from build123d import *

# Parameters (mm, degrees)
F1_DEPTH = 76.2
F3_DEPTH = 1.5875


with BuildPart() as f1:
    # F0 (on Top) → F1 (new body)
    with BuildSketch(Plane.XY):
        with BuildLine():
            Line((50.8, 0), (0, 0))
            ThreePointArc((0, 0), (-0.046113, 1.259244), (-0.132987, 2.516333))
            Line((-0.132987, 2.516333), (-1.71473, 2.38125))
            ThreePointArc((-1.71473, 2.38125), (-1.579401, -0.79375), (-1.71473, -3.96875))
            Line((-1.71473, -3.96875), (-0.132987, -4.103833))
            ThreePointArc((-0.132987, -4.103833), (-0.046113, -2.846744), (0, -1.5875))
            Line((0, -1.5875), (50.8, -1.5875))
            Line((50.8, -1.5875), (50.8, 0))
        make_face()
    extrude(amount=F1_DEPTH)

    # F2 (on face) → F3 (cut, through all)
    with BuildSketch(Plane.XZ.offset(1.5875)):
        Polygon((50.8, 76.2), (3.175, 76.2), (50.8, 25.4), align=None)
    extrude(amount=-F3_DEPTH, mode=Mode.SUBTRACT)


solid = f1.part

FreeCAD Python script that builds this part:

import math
import FreeCAD as App
import Part
import Sketcher
from FreeCAD import Vector
Q = App.Units.Quantity

doc = App.newDocument("Part")
params = doc.addObject("Spreadsheet::Sheet", "Params")
for row, (alias, value) in enumerate([
    ("sketch1_width", "2 in"),
    ("sketch1_height", "0.0625 in"),
    ("sketch1_length", "0.0625 in"),
    ("pad1_length", "3 in"),
    ("sketch2_height", "2 in"),
    ("sketch2_width", "1.875 in"),
], start=1):
    params.set(f"A{row}", alias)
    params.set(f"B{row}", "=" + value)
    params.setAlias(f"B{row}", alias)

body = doc.addObject("PartDesign::Body", "Body")

sketch1 = body.newObject("Sketcher::SketchObject", "Sketch")
sketch1.AttachmentSupport = (doc.getObject("XY_Plane"), [""])
sketch1.MapMode = "FlatFace"
sketch1.addGeometry([
    Part.LineSegment(Vector(50.8, 0, 0), Vector(0, 0, 0)),
    Part.ArcOfCircle(Part.Circle(Vector(-38.9, -0.8, 0), Vector(0, 0, 1), 38.9), math.radians(1.17), math.radians(4.88)),
    Part.LineSegment(Vector(-0.1, 2.5, 0), Vector(-1.7, 2.4, 0)),
    Part.ArcOfCircle(Part.Circle(Vector(-38.9, -0.8, 0), Vector(0, 0, 1), 37.3), math.radians(-4.88), math.radians(4.88)),
    Part.LineSegment(Vector(-1.7, -4, 0), Vector(-0.1, -4.1, 0)),
    Part.ArcOfCircle(Part.Circle(Vector(-38.9, -0.8, 0), Vector(0, 0, 1), 38.9), math.radians(-4.88), math.radians(-1.17)),
    Part.LineSegment(Vector(0, -1.6, 0), Vector(50.8, -1.6, 0)),
    Part.LineSegment(Vector(50.8, -1.6, 0), Vector(50.8, 0, 0)),
], False)
sketch1.addConstraint([
    Sketcher.Constraint("Coincident", 0, 2, 1, 1),
    Sketcher.Constraint("Coincident", 1, 2, 2, 1),
    Sketcher.Constraint("Coincident", 2, 2, 3, 2),
    Sketcher.Constraint("Coincident", 3, 1, 4, 1),
    Sketcher.Constraint("Coincident", 4, 2, 5, 1),
    Sketcher.Constraint("Coincident", 5, 2, 6, 1),
    Sketcher.Constraint("Coincident", 6, 2, 7, 1),
    Sketcher.Constraint("Coincident", 7, 2, 0, 1),
    Sketcher.Constraint("Horizontal", 0),
    Sketcher.Constraint("Horizontal", 6),
    Sketcher.Constraint("Vertical", 7),
    Sketcher.Constraint("Coincident", 0, 2, -1, 1),
    Sketcher.Constraint("Equal", 1, 5),
    Sketcher.Constraint("PointOnObject", 5, 2, -2),
    Sketcher.Constraint("Vertical", 1, 3, 5, 3),
    Sketcher.Constraint("Vertical", 2, 2, 3, 1),
    Sketcher.Constraint("Vertical", 1, 2, 4, 2),
    Sketcher.Constraint("Equal", 2, 4),
    Sketcher.Constraint("DistanceX", 0, 2, 0, 1, Q("2 in")),
    Sketcher.Constraint("DistanceY", 7, 1, 7, 2, Q("0.0625 in")),
    Sketcher.Constraint("DistanceY", 3, 1, 2, 2, Q("0.25 in")),
    Sketcher.Constraint("Distance", 2, Q("0.0625 in")),
    Sketcher.Constraint("Radius", 1, Q("38.900086 mm")),
    Sketcher.Constraint("Radius", 3, Q("37.312545 mm")),
    Sketcher.Constraint("DistanceX", 1, 3, 1, 2, Q("38.759 mm")),
    Sketcher.Constraint("DistanceX", 2, 2, -1, 1, Q("1.71473 mm")),
])
sketch1.setExpression("Constraints[18]", "Params.sketch1_width")
sketch1.setExpression("Constraints[19]", "Params.sketch1_height")
sketch1.setExpression("Constraints[21]", "Params.sketch1_length")
pad1 = body.newObject("PartDesign::Pad", "Pad")
pad1.Profile = sketch1
pad1.setExpression("Length", "Params.pad1_length")

sketch2 = body.newObject("Sketcher::SketchObject", "Sketch001")
sketch2.AttachmentSupport = (doc.getObject("XZ_Plane"), [""])
sketch2.MapMode = "FlatFace"
sketch2.AttachmentOffset = App.Placement(Vector(0, 0, 0.0625 * 25.4), App.Rotation())
sketch2.addGeometry([
    Part.LineSegment(Vector(51, 76, 0), Vector(3, 76, 0)),
    Part.LineSegment(Vector(3, 76, 0), Vector(51, 25, 0)),
    Part.LineSegment(Vector(51, 25, 0), Vector(51, 76, 0)),
], False)
sketch2.addConstraint([
    Sketcher.Constraint("Coincident", 0, 2, 1, 1),
    Sketcher.Constraint("Coincident", 1, 2, 2, 1),
    Sketcher.Constraint("Coincident", 2, 2, 0, 1),
    Sketcher.Constraint("Horizontal", 0),
    Sketcher.Constraint("Vertical", 2),
    Sketcher.Constraint("DistanceY", 2, 1, 2, 2, Q("2 in")),
    Sketcher.Constraint("DistanceY", -1, 1, 0, 2, Q("3 in")),
    Sketcher.Constraint("DistanceX", -1, 1, 1, 2, Q("2 in")),
    Sketcher.Constraint("DistanceX", 0, 2, 0, 1, Q("1.875 in")),
])
sketch2.setExpression("Constraints[5]", "Params.sketch2_height")
sketch2.setExpression("Constraints[8]", "Params.sketch2_width")
pocket1 = body.newObject("PartDesign::Pocket", "Pocket")
pocket1.Profile = sketch2
pocket1.Type = "ThroughAll"

doc.recompute()
